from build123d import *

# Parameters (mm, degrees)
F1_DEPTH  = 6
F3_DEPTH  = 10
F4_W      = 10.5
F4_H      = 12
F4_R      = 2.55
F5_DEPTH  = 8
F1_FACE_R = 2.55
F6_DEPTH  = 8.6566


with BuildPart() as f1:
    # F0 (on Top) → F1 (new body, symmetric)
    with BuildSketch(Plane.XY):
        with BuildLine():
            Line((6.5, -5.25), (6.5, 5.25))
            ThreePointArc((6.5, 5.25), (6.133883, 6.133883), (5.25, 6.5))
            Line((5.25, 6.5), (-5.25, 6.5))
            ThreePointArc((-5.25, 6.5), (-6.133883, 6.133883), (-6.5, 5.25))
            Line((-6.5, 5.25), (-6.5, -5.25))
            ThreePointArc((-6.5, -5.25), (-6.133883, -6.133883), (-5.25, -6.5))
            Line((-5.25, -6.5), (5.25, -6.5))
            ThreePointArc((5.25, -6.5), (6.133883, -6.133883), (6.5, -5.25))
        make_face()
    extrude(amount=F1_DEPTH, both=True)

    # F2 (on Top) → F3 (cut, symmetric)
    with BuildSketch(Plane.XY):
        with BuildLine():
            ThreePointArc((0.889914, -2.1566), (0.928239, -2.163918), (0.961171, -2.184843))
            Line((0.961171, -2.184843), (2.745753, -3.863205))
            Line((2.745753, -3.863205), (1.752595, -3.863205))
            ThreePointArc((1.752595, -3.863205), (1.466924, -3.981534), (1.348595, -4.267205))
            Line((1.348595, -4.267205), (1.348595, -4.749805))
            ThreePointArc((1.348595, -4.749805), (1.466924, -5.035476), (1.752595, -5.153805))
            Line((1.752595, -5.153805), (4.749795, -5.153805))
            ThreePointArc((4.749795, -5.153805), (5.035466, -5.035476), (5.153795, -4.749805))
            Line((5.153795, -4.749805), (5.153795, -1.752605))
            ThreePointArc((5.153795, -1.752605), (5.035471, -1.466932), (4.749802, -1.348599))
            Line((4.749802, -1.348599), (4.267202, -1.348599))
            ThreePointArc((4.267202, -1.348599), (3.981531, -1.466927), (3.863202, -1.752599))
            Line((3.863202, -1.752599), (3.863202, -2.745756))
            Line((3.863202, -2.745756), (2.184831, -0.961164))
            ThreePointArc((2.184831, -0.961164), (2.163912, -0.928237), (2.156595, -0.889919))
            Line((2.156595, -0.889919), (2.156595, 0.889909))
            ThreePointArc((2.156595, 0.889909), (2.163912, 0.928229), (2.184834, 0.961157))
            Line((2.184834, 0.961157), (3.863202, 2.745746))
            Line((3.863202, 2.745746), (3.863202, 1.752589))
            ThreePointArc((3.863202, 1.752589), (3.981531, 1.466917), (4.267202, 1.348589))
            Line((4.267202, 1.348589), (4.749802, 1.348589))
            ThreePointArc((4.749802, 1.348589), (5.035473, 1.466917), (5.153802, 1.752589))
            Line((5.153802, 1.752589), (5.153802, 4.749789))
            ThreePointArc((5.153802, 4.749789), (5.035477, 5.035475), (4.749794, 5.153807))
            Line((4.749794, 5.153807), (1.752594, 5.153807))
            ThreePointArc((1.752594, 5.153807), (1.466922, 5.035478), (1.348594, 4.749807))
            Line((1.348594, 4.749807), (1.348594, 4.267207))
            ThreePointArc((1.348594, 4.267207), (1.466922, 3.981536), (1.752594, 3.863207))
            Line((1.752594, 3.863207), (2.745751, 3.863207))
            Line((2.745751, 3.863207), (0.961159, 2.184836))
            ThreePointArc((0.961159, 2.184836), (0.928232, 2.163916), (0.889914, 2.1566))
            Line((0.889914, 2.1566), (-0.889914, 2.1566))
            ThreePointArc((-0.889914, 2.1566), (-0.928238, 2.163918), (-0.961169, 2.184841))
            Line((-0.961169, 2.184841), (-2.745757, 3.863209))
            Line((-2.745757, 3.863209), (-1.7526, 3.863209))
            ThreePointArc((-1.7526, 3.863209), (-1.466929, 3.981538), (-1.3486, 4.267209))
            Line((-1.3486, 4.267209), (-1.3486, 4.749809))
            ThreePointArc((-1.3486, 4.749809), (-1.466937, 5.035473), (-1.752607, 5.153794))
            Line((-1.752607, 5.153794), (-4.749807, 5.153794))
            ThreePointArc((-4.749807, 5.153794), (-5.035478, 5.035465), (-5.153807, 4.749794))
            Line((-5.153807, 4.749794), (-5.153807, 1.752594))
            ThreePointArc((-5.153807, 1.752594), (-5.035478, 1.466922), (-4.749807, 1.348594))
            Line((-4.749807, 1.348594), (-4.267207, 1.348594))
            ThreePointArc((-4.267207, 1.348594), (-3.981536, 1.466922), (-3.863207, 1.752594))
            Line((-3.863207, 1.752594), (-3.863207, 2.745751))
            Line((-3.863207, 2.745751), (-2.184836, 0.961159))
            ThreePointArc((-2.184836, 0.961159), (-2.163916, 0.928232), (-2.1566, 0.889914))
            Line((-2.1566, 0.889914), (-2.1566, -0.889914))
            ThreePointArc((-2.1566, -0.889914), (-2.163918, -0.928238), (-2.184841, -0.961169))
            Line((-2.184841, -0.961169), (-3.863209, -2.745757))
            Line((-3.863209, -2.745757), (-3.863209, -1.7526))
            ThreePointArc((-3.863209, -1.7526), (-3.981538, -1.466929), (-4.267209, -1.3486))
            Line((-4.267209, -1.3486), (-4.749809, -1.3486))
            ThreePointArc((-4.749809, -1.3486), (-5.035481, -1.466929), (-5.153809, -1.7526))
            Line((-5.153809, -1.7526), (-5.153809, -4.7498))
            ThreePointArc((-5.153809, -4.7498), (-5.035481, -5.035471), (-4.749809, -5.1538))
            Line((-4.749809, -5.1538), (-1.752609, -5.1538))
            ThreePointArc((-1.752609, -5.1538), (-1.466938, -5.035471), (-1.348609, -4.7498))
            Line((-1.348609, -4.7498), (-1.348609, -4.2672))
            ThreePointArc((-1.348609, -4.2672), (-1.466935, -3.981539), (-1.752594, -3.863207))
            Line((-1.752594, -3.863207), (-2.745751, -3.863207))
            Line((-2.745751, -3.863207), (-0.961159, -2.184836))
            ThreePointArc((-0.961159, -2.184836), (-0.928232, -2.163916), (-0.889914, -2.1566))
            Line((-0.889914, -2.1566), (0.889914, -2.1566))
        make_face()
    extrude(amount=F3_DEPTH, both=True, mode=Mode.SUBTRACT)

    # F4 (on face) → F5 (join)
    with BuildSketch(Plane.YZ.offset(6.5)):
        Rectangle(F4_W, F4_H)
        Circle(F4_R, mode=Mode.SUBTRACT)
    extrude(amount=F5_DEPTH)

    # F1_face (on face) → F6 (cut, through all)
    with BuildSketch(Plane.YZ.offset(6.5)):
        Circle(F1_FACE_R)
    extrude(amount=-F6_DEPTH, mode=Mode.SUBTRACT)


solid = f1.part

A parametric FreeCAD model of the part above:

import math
import FreeCAD as App
import Part
import Sketcher
from FreeCAD import Vector
Q = App.Units.Quantity


def add_polygon(sketch, points):
    """Adds a closed chain of lines whose ends are joined by coincident constraints."""
    first, n = sketch.GeometryCount, len(points)
    for a, b in zip(points, points[1:] + points[:1]):
        sketch.addGeometry(Part.LineSegment(App.Vector(*a, 0), App.Vector(*b, 0)), False)
    for i in range(n):
        sketch.addConstraint(Sketcher.Constraint("Coincident", first + i, 2, first + (i + 1) % n, 1))

doc = App.newDocument("Part")
body = doc.addObject("PartDesign::Body", "Body")

# Sketch on XY plane
sketch1 = body.newObject("Sketcher::SketchObject", "Sketch")
sketch1.AttachmentSupport = (doc.getObject("XY_Plane"), [""])
sketch1.MapMode = "FlatFace"
sketch1.addGeometry([
    Part.LineSegment(Vector(6.5, -5.25, 0), Vector(6.5, 5.25, 0)),  # 0
    Part.ArcOfCircle(Part.Circle(Vector(5.249998, 5.249998, 0), Vector(0, 0, 1), 1.250002), math.radians(0.000075), math.radians(89.999925)),  # 1
    Part.LineSegment(Vector(5.25, 6.5, 0), Vector(-5.25, 6.5, 0)),  # 2
    Part.ArcOfCircle(Part.Circle(Vector(-5.249998, 5.249998, 0), Vector(0, 0, 1), 1.250002), math.radians(90.000075), math.radians(179.999925)),  # 3
    Part.LineSegment(Vector(-6.5, 5.25, 0), Vector(-6.5, -5.25, 0)),  # 4
    Part.ArcOfCircle(Part.Circle(Vector(-5.249998, -5.249998, 0), Vector(0, 0, 1), 1.250002), math.radians(-179.999925), math.radians(-90.000075)),  # 5
    Part.LineSegment(Vector(-5.25, -6.5, 0), Vector(5.25, -6.5, 0)),  # 6
    Part.ArcOfCircle(Part.Circle(Vector(5.249998, -5.249998, 0), Vector(0, 0, 1), 1.250002), math.radians(-89.999925), math.radians(-0.000075)),  # 7
], False)
sketch1.addConstraint([
    Sketcher.Constraint("Tangent", 0, 2, 1, 1),
    Sketcher.Constraint("Tangent", 1, 2, 2, 1),
    Sketcher.Constraint("Tangent", 2, 2, 3, 1),
    Sketcher.Constraint("Tangent", 3, 2, 4, 1),
    Sketcher.Constraint("Tangent", 4, 2, 5, 1),
    Sketcher.Constraint("Tangent", 5, 2, 6, 1),
    Sketcher.Constraint("Tangent", 6, 2, 7, 1),
    Sketcher.Constraint("Tangent", 7, 2, 0, 1),
    Sketcher.Constraint("Vertical", 0),
    Sketcher.Constraint("Horizontal", 2),
    Sketcher.Constraint("Vertical", 4),
    Sketcher.Constraint("Horizontal", 6),
    Sketcher.Constraint("Equal", 1, 3),
    Sketcher.Constraint("Equal", 3, 5),
    Sketcher.Constraint("Equal", 5, 7),
    Sketcher.Constraint("Symmetric", 1, 3, 5, 3, -1, 1),
    Sketcher.Constraint("Equal", 6, 0),
    Sketcher.Constraint("Radius", 1, Q("1.250002 mm")),
    Sketcher.Constraint("DistanceX", 2, 2, 2, 1, Q("10.5 mm")),
])
pad1 = body.newObject("PartDesign::Pad", "Pad")
pad1.Profile = sketch1
pad1.Length = 12
pad1.Midplane = True

# Sketch on XY plane
sketch2 = body.newObject("Sketcher::SketchObject", "Sketch001")
sketch2.AttachmentSupport = (doc.getObject("XY_Plane"), [""])
sketch2.MapMode = "FlatFace"
sketch2.addGeometry([
    Part.ArcOfCircle(Part.Circle(Vector(0.889915, -2.26061, 0), Vector(0, 0, 1), 0.10401), math.radians(46.757278), math.radians(90.000523)),  # 0
    Part.LineSegment(Vector(0.961171, -2.184843, 0), Vector(2.745753, -3.863205, 0)),  # 1
    Part.LineSegment(Vector(2.745753, -3.863205, 0), Vector(1.752595, -3.863205, 0)),  # 2
    Part.ArcOfCircle(Part.Circle(Vector(1.752595, -4.267205, 0), Vector(0, 0, 1), 0.404), math.radians(90.000068), math.radians(179.999932)),  # 3
    Part.LineSegment(Vector(1.348595, -4.267205, 0), Vector(1.348595, -4.749805, 0)),  # 4
    Part.ArcOfCircle(Part.Circle(Vector(1.752595, -4.749805, 0), Vector(0, 0, 1), 0.404), math.radians(-179.999932), math.radians(-90.000068)),  # 5
    Part.LineSegment(Vector(1.752595, -5.153805, 0), Vector(4.749795, -5.153805, 0)),  # 6
    Part.ArcOfCircle(Part.Circle(Vector(4.749795, -4.749805, 0), Vector(0, 0, 1), 0.404), math.radians(-89.999932), math.radians(-0.000068)),  # 7
    Part.LineSegment(Vector(5.153795, -4.749805, 0), Vector(5.153795, -1.752605, 0)),  # 8
    Part.ArcOfCircle(Part.Circle(Vector(4.749796, -1.752598, 0), Vector(0, 0, 1), 0.403999), math.radians(-0.001025), math.radians(89.999182)),  # 9
    Part.LineSegment(Vector(4.749802, -1.348599, 0), Vector(4.267202, -1.348599, 0)),  # 10
    Part.ArcOfCircle(Part.Circle(Vector(4.267201, -1.752598, 0), Vector(0, 0, 1), 0.403999), math.radians(89.999826), math.radians(180.000174)),  # 11
    Part.LineSegment(Vector(3.863202, -1.752599, 0), Vector(3.863202, -2.745756, 0)),  # 12
    Part.LineSegment(Vector(3.863202, -2.745756, 0), Vector(2.184831, -0.961164, 0)),  # 13
    Part.ArcOfCircle(Part.Circle(Vector(2.260604, -0.889916, 0), Vector(0, 0, 1), 0.104009), math.radians(-179.998098), math.radians(-136.762823)),  # 14
    Part.LineSegment(Vector(2.156595, -0.889919, 0), Vector(2.156595, 0.889909, 0)),  # 15
    Part.ArcOfCircle(Part.Circle(Vector(2.260594, 0.88991, 0), Vector(0, 0, 1), 0.103999), math.radians(136.758082), math.radians(180.000321)),  # 16
    Part.LineSegment(Vector(2.184834, 0.961157, 0), Vector(3.863202, 2.745746, 0)),  # 17
    Part.LineSegment(Vector(3.863202, 2.745746, 0), Vector(3.863202, 1.752589, 0)),  # 18
    Part.ArcOfCircle(Part.Circle(Vector(4.267201, 1.752588, 0), Vector(0, 0, 1), 0.403999), math.radians(179.999826), math.radians(270.000174)),  # 19
    Part.LineSegment(Vector(4.267202, 1.348589, 0), Vector(4.749802, 1.348589, 0)),  # 20
    Part.ArcOfCircle(Part.Circle(Vector(4.749803, 1.752588, 0), Vector(0, 0, 1), 0.403999), math.radians(-90.000174), math.radians(0.000174)),  # 21
    Part.LineSegment(Vector(5.153802, 1.752589, 0), Vector(5.153802, 4.749789, 0)),  # 22
    Part.ArcOfCircle(Part.Circle(Vector(4.749803, 4.749808, 0), Vector(0, 0, 1), 0.403999), math.radians(-0.002727), math.radians(90.001309)),  # 23
    Part.LineSegment(Vector(4.749794, 5.153807, 0), Vector(1.752594, 5.153807, 0)),  # 24
    Part.ArcOfCircle(Part.Circle(Vector(1.752593, 4.749808, 0), Vector(0, 0, 1), 0.403999), math.radians(89.999826), math.radians(180.000174)),  # 25
    Part.LineSegment(Vector(1.348594, 4.749807, 0), Vector(1.348594, 4.267207, 0)),  # 26
    Part.ArcOfCircle(Part.Circle(Vector(1.752593, 4.267206, 0), Vector(0, 0, 1), 0.403999), math.radians(179.999826), math.radians(270.000174)),  # 27
    Part.LineSegment(Vector(1.752594, 3.863207, 0), Vector(2.745751, 3.863207, 0)),  # 28
    Part.LineSegment(Vector(2.745751, 3.863207, 0), Vector(0.961159, 2.184836, 0)),  # 29
    Part.ArcOfCircle(Part.Circle(Vector(0.889915, 2.260597, 0), Vector(0, 0, 1), 0.103997), math.radians(-90.00078), math.radians(-46.760141)),  # 30
    Part.LineSegment(Vector(0.889914, 2.1566, 0), Vector(-0.889914, 2.1566, 0)),  # 31
    Part.ArcOfCircle(Part.Circle(Vector(-0.889913, 2.260615, 0), Vector(0, 0, 1), 0.104015), math.radians(-133.239916), math.radians(-90.000604)),  # 32
    Part.LineSegment(Vector(-0.961169, 2.184841, 0), Vector(-2.745757, 3.863209, 0)),  # 33
    Part.LineSegment(Vector(-2.745757, 3.863209, 0), Vector(-1.7526, 3.863209, 0)),  # 34
    Part.ArcOfCircle(Part.Circle(Vector(-1.7526, 4.267209, 0), Vector(0, 0, 1), 0.404), math.radians(-89.999932), math.radians(-0.000068)),  # 35
    Part.LineSegment(Vector(-1.3486, 4.267209, 0), Vector(-1.3486, 4.749809, 0)),  # 36
    Part.ArcOfCircle(Part.Circle(Vector(-1.7526, 4.749794, 0), Vector(0, 0, 1), 0.404), math.radians(0.002195), math.radians(90.000925)),  # 37
    Part.LineSegment(Vector(-1.752607, 5.153794, 0), Vector(-4.749807, 5.153794, 0)),  # 38
    Part.ArcOfCircle(Part.Circle(Vector(-4.749807, 4.749794, 0), Vector(0, 0, 1), 0.404), math.radians(90.000068), math.radians(179.999932)),  # 39
    Part.LineSegment(Vector(-5.153807, 4.749794, 0), Vector(-5.153807, 1.752594, 0)),  # 40
    Part.ArcOfCircle(Part.Circle(Vector(-4.749808, 1.752593, 0), Vector(0, 0, 1), 0.403999), math.radians(179.999826), math.radians(270.000174)),  # 41
    Part.LineSegment(Vector(-4.749807, 1.348594, 0), Vector(-4.267207, 1.348594, 0)),  # 42
    Part.ArcOfCircle(Part.Circle(Vector(-4.267206, 1.752593, 0), Vector(0, 0, 1), 0.403999), math.radians(-90.000174), math.radians(0.000174)),  # 43
    Part.LineSegment(Vector(-3.863207, 1.752594, 0), Vector(-3.863207, 2.745751, 0)),  # 44
    Part.LineSegment(Vector(-3.863207, 2.745751, 0), Vector(-2.184836, 0.961159, 0)),  # 45
    Part.ArcOfCircle(Part.Circle(Vector(-2.260597, 0.889915, 0), Vector(0, 0, 1), 0.103997), math.radians(-0.00078), math.radians(43.239859)),  # 46
    Part.LineSegment(Vector(-2.1566, 0.889914, 0), Vector(-2.1566, -0.889914, 0)),  # 47
    Part.ArcOfCircle(Part.Circle(Vector(-2.260615, -0.889913, 0), Vector(0, 0, 1), 0.104015), math.radians(-43.239916), math.radians(-0.000604)),  # 48
    Part.LineSegment(Vector(-2.184841, -0.961169, 0), Vector(-3.863209, -2.745757, 0)),  # 49
    Part.LineSegment(Vector(-3.863209, -2.745757, 0), Vector(-3.863209, -1.7526, 0)),  # 50
    Part.ArcOfCircle(Part.Circle(Vector(-4.267209, -1.7526, 0), Vector(0, 0, 1), 0.404), math.radians(0.000068), math.radians(89.999932)),  # 51
    Part.LineSegment(Vector(-4.267209, -1.3486, 0), Vector(-4.749809, -1.3486, 0)),  # 52
    Part.ArcOfCircle(Part.Circle(Vector(-4.74981, -1.752599, 0), Vector(0, 0, 1), 0.403999), math.radians(89.999826), math.radians(180.000174)),  # 53
    Part.LineSegment(Vector(-5.153809, -1.7526, 0), Vector(-5.153809, -4.7498, 0)),  # 54
    Part.ArcOfCircle(Part.Circle(Vector(-4.74981, -4.749801, 0), Vector(0, 0, 1), 0.403999), math.radians(179.999826), math.radians(270.000174)),  # 55
    Part.LineSegment(Vector(-4.749809, -5.1538, 0), Vector(-1.752609, -5.1538, 0)),  # 56
    Part.ArcOfCircle(Part.Circle(Vector(-1.752609, -4.7498, 0), Vector(0, 0, 1), 0.404), math.radians(-89.999932), math.radians(-0.000068)),  # 57
    Part.LineSegment(Vector(-1.348609, -4.7498, 0), Vector(-1.348609, -4.2672, 0)),  # 58
    Part.ArcOfCircle(Part.Circle(Vector(-1.752609, -4.267207, 0), Vector(0, 0, 1), 0.404), math.radians(0.00106), math.radians(89.997805)),  # 59
    Part.LineSegment(Vector(-1.752594, -3.863207, 0), Vector(-2.745751, -3.863207, 0)),  # 60
    Part.LineSegment(Vector(-2.745751, -3.863207, 0), Vector(-0.961159, -2.184836, 0)),  # 61
    Part.ArcOfCircle(Part.Circle(Vector(-0.889915, -2.260597, 0), Vector(0, 0, 1), 0.103997), math.radians(89.99922), math.radians(133.239859)),  # 62
    Part.LineSegment(Vector(-0.889914, -2.1566, 0), Vector(0.889914, -2.1566, 0)),  # 63
], False)
sketch2.addConstraint([
    Sketcher.Constraint("Coincident", 0, 1, 1, 1),
    Sketcher.Constraint("Coincident", 1, 2, 2, 1),
    Sketcher.Constraint("Tangent", 2, 2, 3, 1),
    Sketcher.Constraint("Tangent", 3, 2, 4, 1),
    Sketcher.Constraint("Tangent", 4, 2, 5, 1),
    Sketcher.Constraint("Tangent", 5, 2, 6, 1),
    Sketcher.Constraint("Tangent", 6, 2, 7, 1),
    Sketcher.Constraint("Tangent", 7, 2, 8, 1),
    Sketcher.Constraint("Coincident", 8, 2, 9, 1),
    Sketcher.Constraint("Coincident", 9, 2, 10, 1),
    Sketcher.Constraint("Coincident", 10, 2, 11, 1),
    Sketcher.Constraint("Coincident", 11, 2, 12, 1),
    Sketcher.Constraint("Coincident", 12, 2, 13, 1),
    Sketcher.Constraint("Coincident", 13, 2, 14, 2),
    Sketcher.Constraint("Coincident", 14, 1, 15, 1),
    Sketcher.Constraint("Coincident", 15, 2, 16, 2),
    Sketcher.Constraint("Coincident", 16, 1, 17, 1),
    Sketcher.Constraint("Coincident", 17, 2, 18, 1),
    Sketcher.Constraint("Coincident", 18, 2, 19, 1),
    Sketcher.Constraint("Coincident", 19, 2, 20, 1),
    Sketcher.Constraint("Coincident", 20, 2, 21, 1),
    Sketcher.Constraint("Coincident", 21, 2, 22, 1),
    Sketcher.Constraint("Coincident", 22, 2, 23, 1),
    Sketcher.Constraint("Coincident", 23, 2, 24, 1),
    Sketcher.Constraint("Coincident", 24, 2, 25, 1),
    Sketcher.Constraint("Coincident", 25, 2, 26, 1),
    Sketcher.Constraint("Coincident", 26, 2, 27, 1),
    Sketcher.Constraint("Coincident", 27, 2, 28, 1),
    Sketcher.Constraint("Coincident", 28, 2, 29, 1),
    Sketcher.Constraint("Coincident", 29, 2, 30, 2),
    Sketcher.Constraint("Coincident", 30, 1, 31, 1),
    Sketcher.Constraint("Coincident", 31, 2, 32, 2),
    Sketcher.Constraint("Coincident", 32, 1, 33, 1),
    Sketcher.Constraint("Coincident", 33, 2, 34, 1),
    Sketcher.Constraint("Tangent", 34, 2, 35, 1),
    Sketcher.Constraint("Tangent", 35, 2, 36, 1),
    Sketcher.Constraint("Coincident", 36, 2, 37, 1),
    Sketcher.Constraint("Coincident", 37, 2, 38, 1),
    Sketcher.Constraint("Tangent", 38, 2, 39, 1),
    Sketcher.Constraint("Tangent", 39, 2, 40, 1),
    Sketcher.Constraint("Coincident", 40, 2, 41, 1),
    Sketcher.Constraint("Coincident", 41, 2, 42, 1),
    Sketcher.Constraint("Coincident", 42, 2, 43, 1),
    Sketcher.Constraint("Coincident", 43, 2, 44, 1),
    Sketcher.Constraint("Coincident", 44, 2, 45, 1),
    Sketcher.Constraint("Coincident", 45, 2, 46, 2),
    Sketcher.Constraint("Coincident", 46, 1, 47, 1),
    Sketcher.Constraint("Coincident", 47, 2, 48, 2),
    Sketcher.Constraint("Coincident", 48, 1, 49, 1),
    Sketcher.Constraint("Coincident", 49, 2, 50, 1),
    Sketcher.Constraint("Tangent", 50, 2, 51, 1),
    Sketcher.Constraint("Tangent", 51, 2, 52, 1),
    Sketcher.Constraint("Coincident", 52, 2, 53, 1),
    Sketcher.Constraint("Coincident", 53, 2, 54, 1),
    Sketcher.Constraint("Coincident", 54, 2, 55, 1),
    Sketcher.Constraint("Coincident", 55, 2, 56, 1),
    Sketcher.Constraint("Tangent", 56, 2, 57, 1),
    Sketcher.Constraint("Tangent", 57, 2, 58, 1),
    Sketcher.Constraint("Coincident", 58, 2, 59, 1),
    Sketcher.Constraint("Coincident", 59, 2, 60, 1),
    Sketcher.Constraint("Coincident", 60, 2, 61, 1),
    Sketcher.Constraint("Coincident", 61, 2, 62, 2),
    Sketcher.Constraint("Coincident", 62, 1, 63, 1),
    Sketcher.Constraint("Coincident", 63, 2, 0, 2),
    Sketcher.Constraint("Horizontal", 2),
    Sketcher.Constraint("Vertical", 4),
    Sketcher.Constraint("Horizontal", 6),
    Sketcher.Constraint("Vertical", 8),
    Sketcher.Constraint("Horizontal", 10),
    Sketcher.Constraint("Vertical", 12),
    Sketcher.Constraint("Vertical", 15),
    Sketcher.Constraint("Vertical", 18),
    Sketcher.Constraint("Horizontal", 20),
    Sketcher.Constraint("Vertical", 22),
    Sketcher.Constraint("Horizontal", 24),
    Sketcher.Constraint("Vertical", 26),
    Sketcher.Constraint("Horizontal", 28),
    Sketcher.Constraint("Horizontal", 31),
    Sketcher.Constraint("Horizontal", 34),
    Sketcher.Constraint("Vertical", 36),
    Sketcher.Constraint("Horizontal", 38),
    Sketcher.Constraint("Vertical", 40),
    Sketcher.Constraint("Horizontal", 42),
    Sketcher.Constraint("Vertical", 44),
    Sketcher.Constraint("Vertical", 47),
    Sketcher.Constraint("Vertical", 50),
    Sketcher.Constraint("Horizontal", 52),
    Sketcher.Constraint("Vertical", 54),
    Sketcher.Constraint("Horizontal", 56),
    Sketcher.Constraint("Vertical", 58),
    Sketcher.Constraint("Horizontal", 60),
    Sketcher.Constraint("Horizontal", 63),
    Sketcher.Constraint("Equal", 3, 5),
    Sketcher.Constraint("Equal", 5, 7),
    Sketcher.Constraint("Equal", 7, 9),
    Sketcher.Constraint("Equal", 9, 11),
    Sketcher.Constraint("Equal", 0, 14),
    Sketcher.Constraint("Equal", 11, 19),
    Sketcher.Constraint("Equal", 19, 21),
    Sketcher.Constraint("Equal", 21, 23),
    Sketcher.Constraint("Equal", 23, 25),
    Sketcher.Constraint("Equal", 25, 27),
    Sketcher.Constraint("Equal", 16, 30),
    Sketcher.Constraint("Equal", 27, 35),
    Sketcher.Constraint("Equal", 35, 37),
    Sketcher.Constraint("Equal", 37, 39),
    Sketcher.Constraint("Equal", 39, 41),
    Sketcher.Constraint("Equal", 41, 43),
    Sketcher.Constraint("Equal", 30, 46),
    Sketcher.Constraint("Equal", 32, 48),
    Sketcher.Constraint("Equal", 43, 51),
    Sketcher.Constraint("Equal", 51, 53),
    Sketcher.Constraint("Equal", 53, 55),
    Sketcher.Constraint("Equal", 55, 57),
    Sketcher.Constraint("Equal", 57, 59),
    Sketcher.Constraint("Equal", 46, 62),
    Sketcher.Constraint("Symmetric", 0, 3, 32, 3, -1, 1),
    Sketcher.Constraint("Symmetric", 3, 3, 35, 3, -1, 1),
    Sketcher.Constraint("Symmetric", 11, 3, 43, 3, -1, 1),
    Sketcher.Constraint("Symmetric", 14, 3, 46, 3, -1, 1),
    Sketcher.Constraint("Symmetric", 23, 3, 55, 3, -1, 1),
    Sketcher.Constraint("Symmetric", 30, 3, 62, 3, -1, 1),
    Sketcher.Constraint("Symmetric", 13, 2, 45, 2, -1, 1),
    Sketcher.Constraint("Symmetric", 27, 2, 59, 2, -1, 1),
    Sketcher.Constraint("Symmetric", 27, 3, 35, 3, -2),
    Sketcher.Constraint("Symmetric", 21, 3, 41, 3, -2),
    Sketcher.Constraint("Symmetric", 11, 3, 51, 3, -2),
    Sketcher.Constraint("Symmetric", 18, 2, 43, 2, -2),
    Sketcher.Constraint("Symmetric", 16, 1, 45, 2, -2),
    Sketcher.Constraint("Symmetric", 7, 3, 23, 3, -1),
    Sketcher.Constraint("Symmetric", 38, 2, 55, 2, -1),
    Sketcher.Constraint("Perpendicular", 1, 17),
    Sketcher.Constraint("Perpendicular", 13, 29),
    Sketcher.Constraint("Perpendicular", 17, 33),
    Sketcher.Constraint("Perpendicular", 29, 45),
    Sketcher.Constraint("Perpendicular", 33, 49),
    Sketcher.Constraint("Perpendicular", 45, 61),
    Sketcher.Constraint("Horizontal", 53, 3, 11, 2),
    Sketcher.Constraint("Horizontal", 16, 3, 15, 2),
    Sketcher.Constraint("Horizontal", 21, 3, 18, 2),
    Sketcher.Constraint("Horizontal", 18, 2, 21, 2),
    Sketcher.Constraint("Horizontal", 23, 3, 25, 2),
    Sketcher.Constraint("Horizontal", 27, 3, 26, 2),
    Sketcher.Constraint("Horizontal", 25, 3, 36, 2),
    Sketcher.Constraint("Horizontal", 43, 3, 40, 2),
    Sketcher.Constraint("Horizontal", 48, 3, 47, 2),
    Sketcher.Constraint("Horizontal", 12, 2, 49, 2),
    Sketcher.Constraint("Horizontal", 50, 2, 53, 2),
    Sketcher.Constraint("Horizontal", 57, 3, 54, 2),
    Sketcher.Constraint("Vertical", 0, 3, 30, 3),
    Sketcher.Constraint("Vertical", 23, 3, 9, 2),
    Sketcher.Constraint("Vertical", 19, 3, 10, 2),
    Sketcher.Constraint("Vertical", 10, 2, 19, 2),
    Sketcher.Constraint("Vertical", 9, 2, 20, 2),
    Sketcher.Constraint("Vertical", 6, 2, 23, 2),
    Sketcher.Constraint("Vertical", 5, 2, 24, 2),
    Sketcher.Constraint("Vertical", 24, 2, 27, 2),
    Sketcher.Constraint("Vertical", 0, 3, 30, 1),
    Sketcher.Constraint("Vertical", 62, 3, 31, 2),
    Sketcher.Constraint("Vertical", 38, 2, 41, 2),
    Sketcher.Constraint("Vertical", 43, 3, 42, 2),
    Sketcher.Constraint("Vertical", 55, 3, 52, 2),
    Sketcher.Constraint("Vertical", 31, 2, 62, 1),
    Sketcher.Constraint("Vertical", 30, 1, 63, 2),
    Sketcher.Constraint("Equal", 2, 28),
    Sketcher.Constraint("Equal", 24, 38),
    Sketcher.Constraint("Equal", 38, 56),
    Sketcher.Constraint("Equal", 52, 4),
    Sketcher.Constraint("Equal", 56, 8),
    Sketcher.Constraint("Equal", 60, 12),
    Sketcher.Constraint("Equal", 63, 15),
    Sketcher.Constraint("Equal", 8, 22),
    Sketcher.Constraint("Equal", 22, 40),
    Sketcher.Constraint("Equal", 15, 47),
    Sketcher.Constraint("Equal", 36, 58),
    Sketcher.Constraint("Equal", 13, 29),
    Sketcher.Constraint("Equal", 17, 33),
    Sketcher.Constraint("Equal", 33, 49),
    Sketcher.Constraint("Equal", 45, 61),
    Sketcher.Constraint("Radius", 3, Q("0.404 mm")),
    Sketcher.Constraint("Radius", 16, Q("0.103999 mm")),
    Sketcher.Constraint("DistanceX", 6, 1, 6, 2, Q("2.9972 mm")),
    Sketcher.Constraint("DistanceX", 10, 2, 10, 1, Q("0.4826 mm")),
    Sketcher.Constraint("DistanceX", 2, 2, 2, 1, Q("0.993158 mm")),
    Sketcher.Constraint("DistanceX", -1, 1, 11, 3, Q("4.267201 mm")),
    Sketcher.Constraint("DistanceY", 51, 3, -1, 1, Q("1.7526 mm")),
    Sketcher.Constraint("DistanceY", -1, 1, 30, 1, Q("2.1566 mm")),
    Sketcher.Constraint("DistanceX", 46, 1, -1, 1, Q("2.1566 mm")),
    Sketcher.Constraint("Distance", 33, Q("2.449831 mm")),
    Sketcher.Constraint("DistanceX", 31, 2, 31, 1, Q("1.779828 mm")),
    Sketcher.Constraint("DistanceX", -1, 1, 0, 1, Q("0.961171 mm")),
])
pocket1 = body.newObject("PartDesign::Pocket", "Pocket")
pocket1.Profile = sketch2
pocket1.Length = 20
pocket1.Midplane = True

# Sketch on YZ plane
sketch3 = body.newObject("Sketcher::SketchObject", "Sketch002")
sketch3.AttachmentSupport = (doc.getObject("YZ_Plane"), [""])
sketch3.MapMode = "FlatFace"
sketch3.AttachmentOffset = App.Placement(Vector(0, 0, 6.5), App.Rotation())
add_polygon(sketch3, [(-5.25, 6), (-5.25, -6), (5.25, -6), (5.25, 6)])  # lines 0-3
sketch3.addGeometry(Part.Circle(Vector(0, 0, 0), Vector(0, 0, 1), 2.55), False)  # 4
sketch3.addConstraint([
    Sketcher.Constraint("Vertical", 0),
    Sketcher.Constraint("Horizontal", 1),
    Sketcher.Constraint("Vertical", 2),
    Sketcher.Constraint("Horizontal", 3),
    Sketcher.Constraint("Coincident", 4, 3, -1, 1),
    Sketcher.Constraint("Symmetric", 0, 2, 2, 2, -1, 1),
    Sketcher.Constraint("Diameter", 4, Q("5.1 mm")),
    Sketcher.Constraint("DistanceY", 0, 2, 0, 1, Q("12 mm")),
    Sketcher.Constraint("DistanceX", 1, 1, 1, 2, Q("10.5 mm")),
])
pad2 = body.newObject("PartDesign::Pad", "Pad001")
pad2.Profile = sketch3
pad2.Length = 8

# Sketch on YZ plane
sketch4 = body.newObject("Sketcher::SketchObject", "Sketch003")
sketch4.AttachmentSupport = (doc.getObject("YZ_Plane"), [""])
sketch4.MapMode = "FlatFace"
sketch4.AttachmentOffset = App.Placement(Vector(0, 0, 6.5), App.Rotation())
sketch4.addGeometry(Part.Circle(Vector(0, 0, 0), Vector(0, 0, 1), 2.55), False)
sketch4.addConstraint([
    Sketcher.Constraint("Coincident", 0, 3, -1, 1),
    Sketcher.Constraint("Diameter", 0, Q("5.1 mm")),
])
pocket2 = body.newObject("PartDesign::Pocket", "Pocket001")
pocket2.Profile = sketch4
pocket2.Length = 8.6566

doc.recompute()
